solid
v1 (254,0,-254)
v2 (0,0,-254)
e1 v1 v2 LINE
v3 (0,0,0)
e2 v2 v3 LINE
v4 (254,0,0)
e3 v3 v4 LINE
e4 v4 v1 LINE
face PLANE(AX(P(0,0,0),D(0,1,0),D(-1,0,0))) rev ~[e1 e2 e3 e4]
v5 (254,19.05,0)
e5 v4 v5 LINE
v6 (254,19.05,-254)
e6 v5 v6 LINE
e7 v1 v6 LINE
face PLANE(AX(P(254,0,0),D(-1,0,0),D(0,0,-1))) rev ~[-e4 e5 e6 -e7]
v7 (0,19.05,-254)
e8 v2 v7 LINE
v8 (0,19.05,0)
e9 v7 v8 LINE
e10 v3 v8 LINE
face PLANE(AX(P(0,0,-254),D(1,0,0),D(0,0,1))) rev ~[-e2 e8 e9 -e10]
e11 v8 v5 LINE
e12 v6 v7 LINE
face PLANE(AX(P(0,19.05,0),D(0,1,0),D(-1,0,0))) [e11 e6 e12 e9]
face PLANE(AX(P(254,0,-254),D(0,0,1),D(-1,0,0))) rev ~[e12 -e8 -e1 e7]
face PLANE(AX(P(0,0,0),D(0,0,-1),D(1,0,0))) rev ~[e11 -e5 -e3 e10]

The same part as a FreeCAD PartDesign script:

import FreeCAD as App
import Part
import Sketcher

V = App.Vector
Q = App.Units.Quantity

doc = App.newDocument("Part")
body = doc.addObject("PartDesign::Body", "Body")

# Sketch on XZ plane
sketch1 = doc.addObject("Sketcher::SketchObject", "Sketch")
body.addObject(sketch1)
sketch1.AttachmentSupport = (doc.XZ_Plane, [""])
sketch1.MapMode = "FlatFace"
sketch1.addGeometry([
    Part.LineSegment(V(0, -254, 0), V(0, 0, 0)),
    Part.LineSegment(V(0, 0, 0), V(254, 0, 0)),
    Part.LineSegment(V(254, 0, 0), V(254, -254, 0)),
    Part.LineSegment(V(254, -254, 0), V(0, -254, 0)),
], False)
sketch1.addConstraint([
    Sketcher.Constraint("Coincident", 0, 2, 1, 1),
    Sketcher.Constraint("Coincident", 1, 2, 2, 1),
    Sketcher.Constraint("Coincident", 2, 2, 3, 1),
    Sketcher.Constraint("Coincident", 3, 2, 0, 1),
    Sketcher.Constraint("Vertical", 0),
    Sketcher.Constraint("Horizontal", 1),
    Sketcher.Constraint("Vertical", 2),
    Sketcher.Constraint("Horizontal", 3),
    Sketcher.Constraint("Coincident", 0, 2, -1, 1),
    Sketcher.Constraint("Equal", 3, 0),
    Sketcher.Constraint("DistanceX", 1, 1, 1, 2, Q("10 in")),
])
pad1 = doc.addObject("PartDesign::Pad", "Pad")
body.addObject(pad1)
pad1.Profile = sketch1
pad1.Length = Q("0.75 in")
pad1.Reversed = True

doc.recompute()
